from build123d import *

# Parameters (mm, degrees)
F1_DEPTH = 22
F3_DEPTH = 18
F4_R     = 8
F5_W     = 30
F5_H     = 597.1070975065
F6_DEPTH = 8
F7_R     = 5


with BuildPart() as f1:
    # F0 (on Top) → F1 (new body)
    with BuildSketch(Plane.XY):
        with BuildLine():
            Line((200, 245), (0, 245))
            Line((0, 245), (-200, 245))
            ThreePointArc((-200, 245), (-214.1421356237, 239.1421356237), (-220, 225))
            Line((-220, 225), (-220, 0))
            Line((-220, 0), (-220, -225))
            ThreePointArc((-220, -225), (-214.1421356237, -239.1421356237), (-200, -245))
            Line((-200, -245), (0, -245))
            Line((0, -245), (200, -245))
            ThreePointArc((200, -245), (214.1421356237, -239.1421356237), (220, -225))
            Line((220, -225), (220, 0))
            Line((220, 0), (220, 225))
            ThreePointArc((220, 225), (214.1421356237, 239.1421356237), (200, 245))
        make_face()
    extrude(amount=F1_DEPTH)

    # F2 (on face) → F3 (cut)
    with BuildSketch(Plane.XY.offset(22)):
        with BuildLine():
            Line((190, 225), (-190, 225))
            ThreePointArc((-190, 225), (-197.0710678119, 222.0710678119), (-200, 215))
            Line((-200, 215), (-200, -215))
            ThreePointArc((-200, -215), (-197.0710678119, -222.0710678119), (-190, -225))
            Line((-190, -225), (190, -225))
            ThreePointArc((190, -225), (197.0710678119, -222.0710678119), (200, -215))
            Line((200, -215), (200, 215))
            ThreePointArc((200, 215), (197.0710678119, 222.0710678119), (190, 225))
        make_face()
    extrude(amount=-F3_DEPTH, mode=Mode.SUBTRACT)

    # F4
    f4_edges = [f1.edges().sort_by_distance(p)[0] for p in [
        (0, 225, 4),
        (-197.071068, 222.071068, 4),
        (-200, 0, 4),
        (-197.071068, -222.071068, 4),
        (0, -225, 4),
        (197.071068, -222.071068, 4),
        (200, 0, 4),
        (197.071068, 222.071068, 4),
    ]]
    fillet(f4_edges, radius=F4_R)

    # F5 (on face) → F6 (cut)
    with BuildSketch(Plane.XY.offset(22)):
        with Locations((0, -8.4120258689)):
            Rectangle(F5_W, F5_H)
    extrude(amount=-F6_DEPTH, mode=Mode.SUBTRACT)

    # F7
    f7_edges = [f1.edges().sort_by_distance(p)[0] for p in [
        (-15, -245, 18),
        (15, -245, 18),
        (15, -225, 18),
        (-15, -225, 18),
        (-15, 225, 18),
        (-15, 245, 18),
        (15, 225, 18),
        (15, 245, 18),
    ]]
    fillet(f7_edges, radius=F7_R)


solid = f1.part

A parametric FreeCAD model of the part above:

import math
import FreeCAD as App
import Part
import Sketcher
Q = App.Units.Quantity


def edges_at(feature, points):
    """Names of the edges that pass closest to the given points."""
    edges = feature.Shape.Edges
    near = lambda p: min(range(len(edges)), key=lambda i: edges[i].distToShape(Part.Vertex(*p))[0])
    return sorted({f"Edge{near(p) + 1}" for p in points})


def add_polygon(sketch, points):
    """Adds a closed chain of lines whose ends are joined by coincident constraints."""
    first, n = sketch.GeometryCount, len(points)
    for a, b in zip(points, points[1:] + points[:1]):
        sketch.addGeometry(Part.LineSegment(App.Vector(*a, 0), App.Vector(*b, 0)), False)
    for i in range(n):
        sketch.addConstraint(Sketcher.Constraint("Coincident", first + i, 2, first + (i + 1) % n, 1))

doc = App.newDocument("Part")
body = doc.addObject("PartDesign::Body", "Body")

sketch1 = body.newObject("Sketcher::SketchObject", "Sketch")
sketch1.AttachmentSupport = (doc.getObject("XY_Plane"), [""])
sketch1.MapMode = "FlatFace"
sketch1.addGeometry(Part.LineSegment(App.Vector(200, 245, 0), App.Vector(-200, 245, 0)), False)
sketch1.addGeometry(Part.ArcOfCircle(Part.Circle(App.Vector(-200, 225, 0), App.Vector(0, 0, 1), 20), math.radians(90), math.radians(180)), False)
sketch1.addGeometry(Part.LineSegment(App.Vector(-220, 225, 0), App.Vector(-220, -225, 0)), False)
sketch1.addGeometry(Part.ArcOfCircle(Part.Circle(App.Vector(-200, -225, 0), App.Vector(0, 0, 1), 20), math.radians(180), math.radians(270)), False)
sketch1.addGeometry(Part.LineSegment(App.Vector(-200, -245, 0), App.Vector(200, -245, 0)), False)
sketch1.addGeometry(Part.ArcOfCircle(Part.Circle(App.Vector(200, -225, 0), App.Vector(0, 0, 1), 20), math.radians(-90), math.radians(0)), False)
sketch1.addGeometry(Part.LineSegment(App.Vector(220, -225, 0), App.Vector(220, 225, 0)), False)
sketch1.addGeometry(Part.ArcOfCircle(Part.Circle(App.Vector(200, 225, 0), App.Vector(0, 0, 1), 20), math.radians(0), math.radians(90)), False)
sketch1.addConstraint(Sketcher.Constraint("Tangent", 0, 2, 1, 1))
sketch1.addConstraint(Sketcher.Constraint("Tangent", 1, 2, 2, 1))
sketch1.addConstraint(Sketcher.Constraint("Tangent", 2, 2, 3, 1))
sketch1.addConstraint(Sketcher.Constraint("Tangent", 3, 2, 4, 1))
sketch1.addConstraint(Sketcher.Constraint("Tangent", 4, 2, 5, 1))
sketch1.addConstraint(Sketcher.Constraint("Tangent", 5, 2, 6, 1))
sketch1.addConstraint(Sketcher.Constraint("Tangent", 6, 2, 7, 1))
sketch1.addConstraint(Sketcher.Constraint("Tangent", 7, 2, 0, 1))
sketch1.addConstraint(Sketcher.Constraint("Horizontal", 0))
sketch1.addConstraint(Sketcher.Constraint("Vertical", 2))
sketch1.addConstraint(Sketcher.Constraint("Horizontal", 4))
sketch1.addConstraint(Sketcher.Constraint("Vertical", 6))
sketch1.addConstraint(Sketcher.Constraint("Equal", 1, 3))
sketch1.addConstraint(Sketcher.Constraint("Equal", 3, 5))
sketch1.addConstraint(Sketcher.Constraint("Equal", 5, 7))
sketch1.addConstraint(Sketcher.Constraint("Symmetric", 1, 3, 5, 3, -1, 1))
sketch1.addConstraint(Sketcher.Constraint("Radius", 1, Q("20 mm")))
sketch1.addConstraint(Sketcher.Constraint("DistanceX", 0, 2, 0, 1, Q("400 mm")))
sketch1.addConstraint(Sketcher.Constraint("DistanceY", 2, 2, 2, 1, Q("450 mm")))
pad1 = body.newObject("PartDesign::Pad", "Pad")
pad1.Profile = sketch1
pad1.Length = 22

sketch2 = body.newObject("Sketcher::SketchObject", "Sketch001")
sketch2.AttachmentSupport = (doc.getObject("XY_Plane"), [""])
sketch2.MapMode = "FlatFace"
sketch2.AttachmentOffset = App.Placement(App.Vector(0, 0, 22), App.Rotation())
sketch2.addGeometry(Part.LineSegment(App.Vector(190, 225, 0), App.Vector(-190, 225, 0)), False)
sketch2.addGeometry(Part.ArcOfCircle(Part.Circle(App.Vector(-190, 215, 0), App.Vector(0, 0, 1), 10), math.radians(90), math.radians(180)), False)
sketch2.addGeometry(Part.LineSegment(App.Vector(-200, 215, 0), App.Vector(-200, -215, 0)), False)
sketch2.addGeometry(Part.ArcOfCircle(Part.Circle(App.Vector(-190, -215, 0), App.Vector(0, 0, 1), 10), math.radians(180), math.radians(270)), False)
sketch2.addGeometry(Part.LineSegment(App.Vector(-190, -225, 0), App.Vector(190, -225, 0)), False)
sketch2.addGeometry(Part.ArcOfCircle(Part.Circle(App.Vector(190, -215, 0), App.Vector(0, 0, 1), 10), math.radians(-90), math.radians(0)), False)
sketch2.addGeometry(Part.LineSegment(App.Vector(200, -215, 0), App.Vector(200, 215, 0)), False)
sketch2.addGeometry(Part.ArcOfCircle(Part.Circle(App.Vector(190, 215, 0), App.Vector(0, 0, 1), 10), math.radians(0), math.radians(90)), False)
sketch2.addConstraint(Sketcher.Constraint("Tangent", 0, 2, 1, 1))
sketch2.addConstraint(Sketcher.Constraint("Tangent", 1, 2, 2, 1))
sketch2.addConstraint(Sketcher.Constraint("Tangent", 2, 2, 3, 1))
sketch2.addConstraint(Sketcher.Constraint("Tangent", 3, 2, 4, 1))
sketch2.addConstraint(Sketcher.Constraint("Tangent", 4, 2, 5, 1))
sketch2.addConstraint(Sketcher.Constraint("Tangent", 5, 2, 6, 1))
sketch2.addConstraint(Sketcher.Constraint("Tangent", 6, 2, 7, 1))
sketch2.addConstraint(Sketcher.Constraint("Tangent", 7, 2, 0, 1))
sketch2.addConstraint(Sketcher.Constraint("Horizontal", 0))
sketch2.addConstraint(Sketcher.Constraint("Vertical", 2))
sketch2.addConstraint(Sketcher.Constraint("Horizontal", 4))
sketch2.addConstraint(Sketcher.Constraint("Vertical", 6))
sketch2.addConstraint(Sketcher.Constraint("Equal", 1, 3))
sketch2.addConstraint(Sketcher.Constraint("Equal", 3, 5))
sketch2.addConstraint(Sketcher.Constraint("Equal", 5, 7))
sketch2.addConstraint(Sketcher.Constraint("Symmetric", 1, 3, 5, 3, -1, 1))
sketch2.addConstraint(Sketcher.Constraint("Radius", 1, Q("10 mm")))
sketch2.addConstraint(Sketcher.Constraint("DistanceX", 0, 2, 0, 1, Q("380 mm")))
sketch2.addConstraint(Sketcher.Constraint("DistanceY", 2, 2, 2, 1, Q("430 mm")))
pocket1 = body.newObject("PartDesign::Pocket", "Pocket")
pocket1.Profile = sketch2
pocket1.Length = 18
doc.recompute()

fillet = body.newObject("PartDesign::Fillet", "Fillet")
fillet.Base = (pocket1, edges_at(pocket1, [
    (0, 225, 4),
    (-197.071, 222.071, 4),
    (-200, 0, 4),
    (-197.071, -222.071, 4),
    (0, -225, 4),
    (197.071, -222.071, 4),
    (200, 0, 4),
    (197.071, 222.071, 4),
]))
fillet.Radius = 8

sketch3 = body.newObject("Sketcher::SketchObject", "Sketch002")
sketch3.AttachmentSupport = (doc.getObject("XY_Plane"), [""])
sketch3.MapMode = "FlatFace"
sketch3.AttachmentOffset = App.Placement(App.Vector(0, 0, 22), App.Rotation())
add_polygon(sketch3, [(-15, 290), (-15, -307), (15, -307), (15, 290)])
sketch3.addConstraint(Sketcher.Constraint("Vertical", 0))
sketch3.addConstraint(Sketcher.Constraint("Horizontal", 1))
sketch3.addConstraint(Sketcher.Constraint("Vertical", 2))
sketch3.addConstraint(Sketcher.Constraint("Horizontal", 3))
sketch3.addConstraint(Sketcher.Constraint("DistanceX", 1, 1, 1, 2, Q("30 mm")))
sketch3.addConstraint(Sketcher.Constraint("DistanceX", 0, 2, -1, 1, Q("15 mm")))
sketch3.addConstraint(Sketcher.Constraint("DistanceY", 0, 2, 0, 1, Q("597.107098 mm")))
sketch3.addConstraint(Sketcher.Constraint("DistanceY", 0, 2, -1, 1, Q("306.965575 mm")))
pocket2 = body.newObject("PartDesign::Pocket", "Pocket001")
pocket2.Profile = sketch3
pocket2.Length = 8
doc.recompute()

fillet2 = body.newObject("PartDesign::Fillet", "Fillet001")
fillet2.Base = (pocket2, edges_at(pocket2, [
    (-15, -245, 18),
    (15, -245, 18),
    (15, -225, 18),
    (-15, -225, 18),
    (-15, 225, 18),
    (-15, 245, 18),
    (15, 225, 18),
    (15, 245, 18),
]))
fillet2.Radius = 5

doc.recompute()
